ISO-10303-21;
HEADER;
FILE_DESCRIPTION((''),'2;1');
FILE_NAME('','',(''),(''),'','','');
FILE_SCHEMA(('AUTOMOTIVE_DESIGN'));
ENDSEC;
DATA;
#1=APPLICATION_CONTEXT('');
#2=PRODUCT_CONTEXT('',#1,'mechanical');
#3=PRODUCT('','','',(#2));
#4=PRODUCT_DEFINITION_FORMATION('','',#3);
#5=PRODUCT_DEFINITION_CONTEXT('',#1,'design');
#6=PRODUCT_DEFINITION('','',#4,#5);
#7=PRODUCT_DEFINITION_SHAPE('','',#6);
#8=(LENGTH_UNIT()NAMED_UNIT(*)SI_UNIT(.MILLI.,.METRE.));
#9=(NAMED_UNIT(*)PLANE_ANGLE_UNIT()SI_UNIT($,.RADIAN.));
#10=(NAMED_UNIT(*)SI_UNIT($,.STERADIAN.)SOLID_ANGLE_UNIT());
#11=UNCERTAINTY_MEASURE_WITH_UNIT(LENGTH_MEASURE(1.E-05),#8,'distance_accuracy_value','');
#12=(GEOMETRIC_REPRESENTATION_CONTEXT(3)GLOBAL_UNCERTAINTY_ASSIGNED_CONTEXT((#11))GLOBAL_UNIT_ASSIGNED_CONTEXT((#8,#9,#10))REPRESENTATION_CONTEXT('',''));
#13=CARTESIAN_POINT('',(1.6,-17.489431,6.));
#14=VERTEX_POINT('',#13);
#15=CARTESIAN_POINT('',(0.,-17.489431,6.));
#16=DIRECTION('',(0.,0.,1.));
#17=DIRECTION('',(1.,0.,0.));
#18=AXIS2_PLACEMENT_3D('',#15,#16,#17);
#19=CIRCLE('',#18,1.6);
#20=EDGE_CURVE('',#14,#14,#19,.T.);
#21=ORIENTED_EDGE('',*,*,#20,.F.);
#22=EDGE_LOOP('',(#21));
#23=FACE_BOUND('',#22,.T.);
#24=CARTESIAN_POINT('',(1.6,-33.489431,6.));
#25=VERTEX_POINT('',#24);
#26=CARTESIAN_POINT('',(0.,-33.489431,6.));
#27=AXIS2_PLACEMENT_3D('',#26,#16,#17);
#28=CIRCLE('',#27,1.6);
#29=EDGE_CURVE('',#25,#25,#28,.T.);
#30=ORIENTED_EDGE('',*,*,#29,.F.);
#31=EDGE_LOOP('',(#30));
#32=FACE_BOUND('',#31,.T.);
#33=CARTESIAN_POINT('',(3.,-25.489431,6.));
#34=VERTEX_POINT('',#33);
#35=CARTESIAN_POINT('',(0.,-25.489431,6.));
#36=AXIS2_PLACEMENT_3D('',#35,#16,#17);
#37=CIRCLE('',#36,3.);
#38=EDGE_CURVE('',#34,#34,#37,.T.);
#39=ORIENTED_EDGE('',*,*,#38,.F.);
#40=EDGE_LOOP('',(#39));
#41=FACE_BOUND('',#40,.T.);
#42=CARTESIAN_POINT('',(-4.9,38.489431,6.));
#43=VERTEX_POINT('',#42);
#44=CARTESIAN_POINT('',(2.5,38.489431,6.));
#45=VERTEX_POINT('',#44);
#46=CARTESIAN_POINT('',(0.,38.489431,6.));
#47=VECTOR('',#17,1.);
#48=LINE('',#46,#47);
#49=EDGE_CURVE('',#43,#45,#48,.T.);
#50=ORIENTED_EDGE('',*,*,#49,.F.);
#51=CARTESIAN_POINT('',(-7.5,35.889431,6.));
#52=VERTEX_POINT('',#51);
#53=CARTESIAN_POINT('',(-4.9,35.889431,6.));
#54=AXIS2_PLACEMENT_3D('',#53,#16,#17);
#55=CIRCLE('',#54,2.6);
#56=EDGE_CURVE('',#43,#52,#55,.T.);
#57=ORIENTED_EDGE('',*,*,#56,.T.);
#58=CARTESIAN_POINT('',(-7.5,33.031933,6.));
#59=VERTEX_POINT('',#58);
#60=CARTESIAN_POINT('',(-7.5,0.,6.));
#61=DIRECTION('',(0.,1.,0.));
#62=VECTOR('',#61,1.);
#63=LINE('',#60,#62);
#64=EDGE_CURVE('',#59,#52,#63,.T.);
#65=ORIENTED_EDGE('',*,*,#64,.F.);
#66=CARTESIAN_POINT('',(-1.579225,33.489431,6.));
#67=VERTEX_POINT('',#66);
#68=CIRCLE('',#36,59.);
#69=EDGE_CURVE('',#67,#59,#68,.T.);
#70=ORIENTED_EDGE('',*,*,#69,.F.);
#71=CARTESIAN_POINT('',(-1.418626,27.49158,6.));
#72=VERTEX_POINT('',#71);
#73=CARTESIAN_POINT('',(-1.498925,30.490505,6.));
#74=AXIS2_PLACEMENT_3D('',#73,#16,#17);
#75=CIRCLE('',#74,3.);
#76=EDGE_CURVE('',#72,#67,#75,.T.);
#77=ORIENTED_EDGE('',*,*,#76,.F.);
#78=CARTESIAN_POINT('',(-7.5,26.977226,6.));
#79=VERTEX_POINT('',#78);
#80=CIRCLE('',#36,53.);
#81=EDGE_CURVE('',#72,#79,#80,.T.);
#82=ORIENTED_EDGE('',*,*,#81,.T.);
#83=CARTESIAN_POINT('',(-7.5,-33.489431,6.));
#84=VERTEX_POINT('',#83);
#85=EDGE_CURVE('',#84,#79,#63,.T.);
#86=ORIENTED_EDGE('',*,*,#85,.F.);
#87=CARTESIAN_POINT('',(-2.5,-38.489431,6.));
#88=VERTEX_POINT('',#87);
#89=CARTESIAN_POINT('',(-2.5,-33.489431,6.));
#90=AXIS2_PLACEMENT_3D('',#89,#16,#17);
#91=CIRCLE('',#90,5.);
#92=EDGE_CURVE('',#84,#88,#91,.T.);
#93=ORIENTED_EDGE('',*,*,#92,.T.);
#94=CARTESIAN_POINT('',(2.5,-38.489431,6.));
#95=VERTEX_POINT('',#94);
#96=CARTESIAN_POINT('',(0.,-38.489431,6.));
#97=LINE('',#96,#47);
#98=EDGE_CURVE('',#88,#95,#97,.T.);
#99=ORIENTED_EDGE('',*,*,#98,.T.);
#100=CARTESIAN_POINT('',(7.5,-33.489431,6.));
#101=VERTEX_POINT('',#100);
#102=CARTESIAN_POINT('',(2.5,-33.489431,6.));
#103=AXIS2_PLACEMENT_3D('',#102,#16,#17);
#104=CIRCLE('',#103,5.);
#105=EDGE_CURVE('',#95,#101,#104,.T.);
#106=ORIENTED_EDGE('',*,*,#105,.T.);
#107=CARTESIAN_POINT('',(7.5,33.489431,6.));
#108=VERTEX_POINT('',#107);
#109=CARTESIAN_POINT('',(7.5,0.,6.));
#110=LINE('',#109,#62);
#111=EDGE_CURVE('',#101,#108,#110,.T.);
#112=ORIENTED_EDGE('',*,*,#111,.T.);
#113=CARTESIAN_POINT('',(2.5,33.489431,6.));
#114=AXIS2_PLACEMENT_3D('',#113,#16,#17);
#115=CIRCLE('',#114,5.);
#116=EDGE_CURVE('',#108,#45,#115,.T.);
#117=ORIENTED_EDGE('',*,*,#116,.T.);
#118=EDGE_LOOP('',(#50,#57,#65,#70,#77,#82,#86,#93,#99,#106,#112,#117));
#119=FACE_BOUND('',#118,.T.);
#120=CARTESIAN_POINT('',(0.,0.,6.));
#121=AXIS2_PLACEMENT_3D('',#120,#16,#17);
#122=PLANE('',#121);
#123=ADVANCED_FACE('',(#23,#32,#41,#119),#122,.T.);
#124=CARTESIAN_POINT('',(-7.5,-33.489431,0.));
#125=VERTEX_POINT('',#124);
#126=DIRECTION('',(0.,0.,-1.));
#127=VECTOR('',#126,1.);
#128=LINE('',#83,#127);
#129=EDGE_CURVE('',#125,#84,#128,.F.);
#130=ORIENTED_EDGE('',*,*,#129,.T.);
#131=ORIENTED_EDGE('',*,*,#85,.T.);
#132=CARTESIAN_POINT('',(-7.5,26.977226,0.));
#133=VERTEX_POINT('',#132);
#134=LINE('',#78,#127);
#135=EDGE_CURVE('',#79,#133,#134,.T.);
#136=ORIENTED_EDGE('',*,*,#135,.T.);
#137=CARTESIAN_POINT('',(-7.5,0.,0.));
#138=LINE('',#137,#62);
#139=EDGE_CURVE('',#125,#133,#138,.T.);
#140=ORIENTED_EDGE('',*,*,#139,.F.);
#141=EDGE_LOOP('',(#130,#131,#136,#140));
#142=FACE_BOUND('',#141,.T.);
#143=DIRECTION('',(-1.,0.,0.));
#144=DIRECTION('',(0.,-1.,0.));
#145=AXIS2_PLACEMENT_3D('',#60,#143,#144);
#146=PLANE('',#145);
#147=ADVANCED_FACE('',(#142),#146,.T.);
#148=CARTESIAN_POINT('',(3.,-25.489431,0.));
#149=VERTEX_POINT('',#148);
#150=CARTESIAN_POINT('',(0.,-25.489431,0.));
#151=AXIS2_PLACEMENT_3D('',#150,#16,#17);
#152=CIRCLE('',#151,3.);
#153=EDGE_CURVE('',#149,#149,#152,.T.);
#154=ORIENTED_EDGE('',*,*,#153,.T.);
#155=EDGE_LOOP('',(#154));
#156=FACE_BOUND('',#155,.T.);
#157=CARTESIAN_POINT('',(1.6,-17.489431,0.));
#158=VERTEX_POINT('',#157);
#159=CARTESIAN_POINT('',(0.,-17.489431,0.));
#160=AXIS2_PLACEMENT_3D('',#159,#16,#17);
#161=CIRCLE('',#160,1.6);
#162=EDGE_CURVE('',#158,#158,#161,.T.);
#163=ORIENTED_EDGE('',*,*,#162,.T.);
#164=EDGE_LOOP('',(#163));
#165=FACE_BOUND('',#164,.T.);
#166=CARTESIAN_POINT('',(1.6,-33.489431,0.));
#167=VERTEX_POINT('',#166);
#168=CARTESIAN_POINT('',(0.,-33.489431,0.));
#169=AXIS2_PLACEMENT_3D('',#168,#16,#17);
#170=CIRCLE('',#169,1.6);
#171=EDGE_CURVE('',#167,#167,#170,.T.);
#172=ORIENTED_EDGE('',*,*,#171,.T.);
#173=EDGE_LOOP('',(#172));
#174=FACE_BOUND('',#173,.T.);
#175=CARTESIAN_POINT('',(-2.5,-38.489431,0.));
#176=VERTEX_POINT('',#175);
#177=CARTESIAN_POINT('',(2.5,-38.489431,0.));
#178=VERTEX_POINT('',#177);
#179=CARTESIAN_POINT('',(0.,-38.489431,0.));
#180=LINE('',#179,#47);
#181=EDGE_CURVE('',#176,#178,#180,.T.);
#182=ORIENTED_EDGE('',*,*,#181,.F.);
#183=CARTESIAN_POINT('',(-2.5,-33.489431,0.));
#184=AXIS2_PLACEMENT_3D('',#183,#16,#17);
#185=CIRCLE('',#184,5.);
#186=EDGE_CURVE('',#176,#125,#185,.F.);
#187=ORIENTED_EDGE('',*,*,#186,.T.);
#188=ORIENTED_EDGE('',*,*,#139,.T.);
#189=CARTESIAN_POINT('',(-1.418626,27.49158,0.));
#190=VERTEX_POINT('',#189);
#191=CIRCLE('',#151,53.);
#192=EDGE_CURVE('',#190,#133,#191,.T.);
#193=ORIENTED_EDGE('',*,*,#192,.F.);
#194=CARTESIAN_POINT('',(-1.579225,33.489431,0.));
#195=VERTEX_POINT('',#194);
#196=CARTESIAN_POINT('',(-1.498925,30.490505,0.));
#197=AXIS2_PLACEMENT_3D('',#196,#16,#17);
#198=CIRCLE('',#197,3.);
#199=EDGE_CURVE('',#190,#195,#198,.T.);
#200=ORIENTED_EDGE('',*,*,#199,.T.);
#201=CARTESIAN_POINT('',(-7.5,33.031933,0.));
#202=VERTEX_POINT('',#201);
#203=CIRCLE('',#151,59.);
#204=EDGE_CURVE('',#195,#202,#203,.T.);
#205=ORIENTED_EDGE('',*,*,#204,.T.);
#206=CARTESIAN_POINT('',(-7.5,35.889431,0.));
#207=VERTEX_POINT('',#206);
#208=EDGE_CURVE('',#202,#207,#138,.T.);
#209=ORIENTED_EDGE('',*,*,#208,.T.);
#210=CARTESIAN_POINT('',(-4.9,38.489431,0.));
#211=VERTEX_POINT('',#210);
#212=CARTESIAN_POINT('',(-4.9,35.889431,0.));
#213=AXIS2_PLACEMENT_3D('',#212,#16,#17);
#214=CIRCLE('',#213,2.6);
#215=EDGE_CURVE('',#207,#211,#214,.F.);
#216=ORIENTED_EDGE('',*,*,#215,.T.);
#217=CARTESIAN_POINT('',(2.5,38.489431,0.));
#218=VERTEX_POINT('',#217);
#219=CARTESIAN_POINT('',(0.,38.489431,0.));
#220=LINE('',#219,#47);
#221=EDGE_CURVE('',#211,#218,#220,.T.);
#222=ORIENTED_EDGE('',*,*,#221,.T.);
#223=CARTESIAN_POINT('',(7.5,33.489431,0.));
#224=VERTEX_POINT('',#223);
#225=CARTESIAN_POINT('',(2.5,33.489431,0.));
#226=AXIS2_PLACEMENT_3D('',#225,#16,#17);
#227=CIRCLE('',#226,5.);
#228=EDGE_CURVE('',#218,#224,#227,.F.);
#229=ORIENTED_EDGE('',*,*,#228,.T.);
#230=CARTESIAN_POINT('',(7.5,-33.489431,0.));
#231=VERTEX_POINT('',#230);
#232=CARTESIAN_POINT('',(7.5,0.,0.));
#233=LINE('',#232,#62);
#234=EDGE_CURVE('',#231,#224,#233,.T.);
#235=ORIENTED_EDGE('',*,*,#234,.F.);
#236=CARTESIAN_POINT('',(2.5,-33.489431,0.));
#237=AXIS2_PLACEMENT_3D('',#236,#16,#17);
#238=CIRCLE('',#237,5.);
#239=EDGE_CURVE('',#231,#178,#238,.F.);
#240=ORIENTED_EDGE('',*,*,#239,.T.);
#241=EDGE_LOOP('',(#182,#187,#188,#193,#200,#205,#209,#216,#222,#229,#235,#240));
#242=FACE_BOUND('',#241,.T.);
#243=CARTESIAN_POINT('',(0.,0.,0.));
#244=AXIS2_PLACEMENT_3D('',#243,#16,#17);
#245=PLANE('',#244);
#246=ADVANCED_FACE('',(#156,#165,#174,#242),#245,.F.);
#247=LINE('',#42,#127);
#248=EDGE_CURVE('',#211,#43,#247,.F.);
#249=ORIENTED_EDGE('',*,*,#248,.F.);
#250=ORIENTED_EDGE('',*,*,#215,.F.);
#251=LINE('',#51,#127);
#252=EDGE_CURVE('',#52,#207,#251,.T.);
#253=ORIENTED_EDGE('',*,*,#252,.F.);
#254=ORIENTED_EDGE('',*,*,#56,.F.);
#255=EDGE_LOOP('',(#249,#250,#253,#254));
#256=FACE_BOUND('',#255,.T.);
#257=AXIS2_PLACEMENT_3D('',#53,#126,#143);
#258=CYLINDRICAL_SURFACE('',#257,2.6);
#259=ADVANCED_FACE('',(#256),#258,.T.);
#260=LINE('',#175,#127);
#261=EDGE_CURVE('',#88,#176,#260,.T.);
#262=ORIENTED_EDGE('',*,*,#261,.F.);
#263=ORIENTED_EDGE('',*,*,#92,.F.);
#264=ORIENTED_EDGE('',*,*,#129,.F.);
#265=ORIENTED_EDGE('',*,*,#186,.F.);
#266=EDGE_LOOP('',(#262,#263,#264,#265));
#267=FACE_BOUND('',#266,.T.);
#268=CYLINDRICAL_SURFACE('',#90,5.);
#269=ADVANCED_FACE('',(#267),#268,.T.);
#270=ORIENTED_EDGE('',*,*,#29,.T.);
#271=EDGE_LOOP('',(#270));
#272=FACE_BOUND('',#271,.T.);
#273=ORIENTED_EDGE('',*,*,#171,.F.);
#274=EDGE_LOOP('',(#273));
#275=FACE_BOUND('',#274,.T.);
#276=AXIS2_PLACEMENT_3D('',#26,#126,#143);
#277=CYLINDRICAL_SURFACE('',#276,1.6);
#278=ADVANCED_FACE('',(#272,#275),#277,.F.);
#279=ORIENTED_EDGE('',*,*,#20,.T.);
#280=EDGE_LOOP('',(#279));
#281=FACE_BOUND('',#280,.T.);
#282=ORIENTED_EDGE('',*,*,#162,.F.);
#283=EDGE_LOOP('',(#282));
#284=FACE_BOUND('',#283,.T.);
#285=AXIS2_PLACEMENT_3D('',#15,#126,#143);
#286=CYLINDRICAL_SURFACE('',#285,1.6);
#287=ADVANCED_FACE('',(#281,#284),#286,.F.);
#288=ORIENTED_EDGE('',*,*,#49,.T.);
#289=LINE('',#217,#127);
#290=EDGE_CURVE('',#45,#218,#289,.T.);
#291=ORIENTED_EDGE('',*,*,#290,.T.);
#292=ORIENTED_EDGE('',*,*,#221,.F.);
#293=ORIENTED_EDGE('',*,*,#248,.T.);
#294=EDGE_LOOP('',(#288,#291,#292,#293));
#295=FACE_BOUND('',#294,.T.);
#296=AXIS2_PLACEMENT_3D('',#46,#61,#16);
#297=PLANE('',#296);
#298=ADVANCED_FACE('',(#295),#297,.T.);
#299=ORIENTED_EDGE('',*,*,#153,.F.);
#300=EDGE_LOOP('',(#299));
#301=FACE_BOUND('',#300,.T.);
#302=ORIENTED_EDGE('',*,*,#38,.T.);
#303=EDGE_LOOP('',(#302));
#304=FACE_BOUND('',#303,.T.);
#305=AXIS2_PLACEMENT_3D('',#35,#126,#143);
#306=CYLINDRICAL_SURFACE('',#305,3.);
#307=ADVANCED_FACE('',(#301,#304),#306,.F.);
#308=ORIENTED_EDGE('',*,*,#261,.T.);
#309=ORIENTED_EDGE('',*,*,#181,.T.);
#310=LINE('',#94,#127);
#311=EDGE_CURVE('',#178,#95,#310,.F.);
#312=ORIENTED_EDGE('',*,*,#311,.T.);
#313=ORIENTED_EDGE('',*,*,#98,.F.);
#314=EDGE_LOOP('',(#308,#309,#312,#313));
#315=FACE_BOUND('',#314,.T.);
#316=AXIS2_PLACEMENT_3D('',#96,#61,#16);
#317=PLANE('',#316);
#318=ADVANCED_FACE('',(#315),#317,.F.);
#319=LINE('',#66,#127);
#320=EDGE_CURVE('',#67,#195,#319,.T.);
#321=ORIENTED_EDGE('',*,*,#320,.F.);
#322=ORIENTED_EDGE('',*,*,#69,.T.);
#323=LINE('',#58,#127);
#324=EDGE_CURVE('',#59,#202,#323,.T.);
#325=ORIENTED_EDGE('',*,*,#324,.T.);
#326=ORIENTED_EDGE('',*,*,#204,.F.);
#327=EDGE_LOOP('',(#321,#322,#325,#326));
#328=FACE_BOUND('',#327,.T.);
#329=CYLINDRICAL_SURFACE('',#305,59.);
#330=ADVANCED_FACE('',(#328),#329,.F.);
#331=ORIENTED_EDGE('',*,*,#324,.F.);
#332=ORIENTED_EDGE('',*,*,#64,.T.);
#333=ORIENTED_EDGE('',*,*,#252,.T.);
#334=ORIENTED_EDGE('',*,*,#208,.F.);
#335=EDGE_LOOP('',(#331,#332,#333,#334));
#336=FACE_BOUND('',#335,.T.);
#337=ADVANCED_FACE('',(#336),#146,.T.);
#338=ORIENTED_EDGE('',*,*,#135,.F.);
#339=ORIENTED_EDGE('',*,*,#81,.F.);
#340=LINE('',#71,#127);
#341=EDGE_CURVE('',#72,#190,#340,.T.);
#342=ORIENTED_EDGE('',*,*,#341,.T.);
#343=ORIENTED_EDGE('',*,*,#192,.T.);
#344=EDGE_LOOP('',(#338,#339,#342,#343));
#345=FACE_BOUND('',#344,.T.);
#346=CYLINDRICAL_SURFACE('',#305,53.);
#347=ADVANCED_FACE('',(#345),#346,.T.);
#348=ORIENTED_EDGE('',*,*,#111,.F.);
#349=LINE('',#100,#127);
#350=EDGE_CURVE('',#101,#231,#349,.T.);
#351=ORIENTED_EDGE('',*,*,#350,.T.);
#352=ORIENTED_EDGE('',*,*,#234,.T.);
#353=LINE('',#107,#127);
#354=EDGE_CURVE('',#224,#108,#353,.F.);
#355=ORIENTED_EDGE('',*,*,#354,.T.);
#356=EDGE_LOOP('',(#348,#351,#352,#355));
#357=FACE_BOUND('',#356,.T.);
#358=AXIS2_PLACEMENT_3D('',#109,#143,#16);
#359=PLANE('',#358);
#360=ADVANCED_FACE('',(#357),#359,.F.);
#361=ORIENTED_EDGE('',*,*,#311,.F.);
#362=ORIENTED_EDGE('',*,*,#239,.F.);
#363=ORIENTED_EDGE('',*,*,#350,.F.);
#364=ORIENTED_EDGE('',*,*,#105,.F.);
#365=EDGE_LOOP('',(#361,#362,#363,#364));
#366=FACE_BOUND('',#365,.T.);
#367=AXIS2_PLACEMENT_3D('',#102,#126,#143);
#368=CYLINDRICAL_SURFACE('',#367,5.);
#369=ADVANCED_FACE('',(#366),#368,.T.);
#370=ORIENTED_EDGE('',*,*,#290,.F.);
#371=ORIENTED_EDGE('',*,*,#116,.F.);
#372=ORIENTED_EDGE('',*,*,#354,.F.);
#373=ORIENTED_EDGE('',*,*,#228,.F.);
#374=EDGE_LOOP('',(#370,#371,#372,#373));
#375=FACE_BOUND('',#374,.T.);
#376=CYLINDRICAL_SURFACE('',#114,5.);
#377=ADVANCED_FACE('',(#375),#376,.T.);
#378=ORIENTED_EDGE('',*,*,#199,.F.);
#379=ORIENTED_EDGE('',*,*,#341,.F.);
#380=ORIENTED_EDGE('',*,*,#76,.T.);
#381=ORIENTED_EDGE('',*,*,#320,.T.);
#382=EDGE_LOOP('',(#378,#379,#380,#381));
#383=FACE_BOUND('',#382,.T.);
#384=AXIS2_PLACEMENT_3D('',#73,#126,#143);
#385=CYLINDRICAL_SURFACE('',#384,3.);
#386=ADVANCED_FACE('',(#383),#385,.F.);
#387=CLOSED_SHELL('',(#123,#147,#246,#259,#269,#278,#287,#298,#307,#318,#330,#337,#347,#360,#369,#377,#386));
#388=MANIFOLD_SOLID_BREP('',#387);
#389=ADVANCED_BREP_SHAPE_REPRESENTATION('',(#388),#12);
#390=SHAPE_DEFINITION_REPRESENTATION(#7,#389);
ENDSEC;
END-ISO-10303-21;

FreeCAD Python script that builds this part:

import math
import FreeCAD as App
import Part
import Sketcher

V = App.Vector
Q = App.Units.Quantity


def edges_at(feature, points):
    """Names of the edges that pass closest to the given points."""
    edges = feature.Shape.Edges
    near = lambda p: min(range(len(edges)), key=lambda i: edges[i].distToShape(Part.Vertex(*p))[0])
    return sorted({f"Edge{near(p) + 1}" for p in points})

doc = App.newDocument("Part")
params = doc.addObject("Spreadsheet::Sheet", "Params")
for row, (alias, value) in enumerate([
    ("sketch1_diameter", "6 mm"),
    ("sketch1_radius", "59 mm"),
    ("sketch1_diameter2", "3.2 mm"),
    ("sketch1_width", "15 mm"),
    ("pad1_length", "6 mm"),
    ("fillet_radius", "5 mm"),
    ("fillet2_radius", "2.6 mm"),
], start=1):
    params.set(f"A{row}", alias)
    params.set(f"B{row}", "=" + value)
    params.setAlias(f"B{row}", alias)

body = doc.addObject("PartDesign::Body", "Body")

# Sketch on XY plane
sketch1 = body.newObject("Sketcher::SketchObject", "Sketch")
sketch1.AttachmentSupport = (doc.getObject("XY_Plane"), [""])
sketch1.MapMode = "FlatFace"
sketch1.addGeometry(Part.LineSegment(V(-7.5, 26.977226, 0), V(-7.5, -38.489431, 0)), False)
sketch1.addGeometry(Part.LineSegment(V(-7.5, -38.489431, 0), V(7.5, -38.489431, 0)), False)
sketch1.addGeometry(Part.LineSegment(V(7.5, -38.489431, 0), V(7.5, 38.489431, 0)), False)
sketch1.addGeometry(Part.LineSegment(V(7.5, 38.489431, 0), V(-7.5, 38.489431, 0)), False)
sketch1.addGeometry(Part.LineSegment(V(-7.5, 38.489431, 0), V(-7.5, 33.031933, 0)), False)
sketch1.addGeometry(Part.ArcOfCircle(Part.Circle(V(0, -25.48943, 0), V(0, 0, 1), 59), math.radians(91.533792), math.radians(97.303121)), False)
sketch1.addGeometry(Part.ArcOfCircle(Part.Circle(V(-1.498925, 30.490505, 0), V(0, 0, 1), 3), math.radians(-88.466208), math.radians(91.533792)), False)
sketch1.addGeometry(Part.ArcOfCircle(Part.Circle(V(0, -25.489431, 0), V(0, 0, 1), 53), math.radians(91.533792), math.radians(98.1352)), False)
sketch1.addGeometry(Part.Circle(V(0, -33.489431, 0), V(0, 0, 1), 1.6), False)
sketch1.addGeometry(Part.Circle(V(0, -25.489431, 0), V(0, 0, 1), 3), False)
sketch1.addGeometry(Part.Circle(V(0, -17.489431, 0), V(0, 0, 1), 1.6), False)
sketch1.addConstraint(Sketcher.Constraint("Coincident", 0, 2, 1, 1))
sketch1.addConstraint(Sketcher.Constraint("Coincident", 1, 2, 2, 1))
sketch1.addConstraint(Sketcher.Constraint("Coincident", 2, 2, 3, 1))
sketch1.addConstraint(Sketcher.Constraint("Coincident", 3, 2, 4, 1))
sketch1.addConstraint(Sketcher.Constraint("Coincident", 4, 2, 5, 2))
sketch1.addConstraint(Sketcher.Constraint("Tangent", 5, 1, 6, 2))
sketch1.addConstraint(Sketcher.Constraint("Tangent", 6, 1, 7, 1))
sketch1.addConstraint(Sketcher.Constraint("Coincident", 7, 2, 0, 1))
sketch1.addConstraint(Sketcher.Constraint("Vertical", 0))
sketch1.addConstraint(Sketcher.Constraint("Horizontal", 1))
sketch1.addConstraint(Sketcher.Constraint("Vertical", 2))
sketch1.addConstraint(Sketcher.Constraint("Horizontal", 3))
sketch1.addConstraint(Sketcher.Constraint("Vertical", 4))
sketch1.addConstraint(Sketcher.Constraint("Coincident", 7, 3, 5, 3))
sketch1.addConstraint(Sketcher.Constraint("Coincident", 9, 3, 5, 3))
sketch1.addConstraint(Sketcher.Constraint("Equal", 6, 9))
sketch1.addConstraint(Sketcher.Constraint("Equal", 8, 10))
sketch1.addConstraint(Sketcher.Constraint("Symmetric", 0, 2, 2, 2, -1, 1))
sketch1.addConstraint(Sketcher.Constraint("PointOnObject", 5, 3, -2))
sketch1.addConstraint(Sketcher.Constraint("PointOnObject", 8, 3, -2))
sketch1.addConstraint(Sketcher.Constraint("PointOnObject", 10, 3, -2))
sketch1.addConstraint(Sketcher.Constraint("Vertical", 0, 2, 3, 2))
sketch1.addConstraint(Sketcher.Constraint("Diameter", 9, Q("6 mm")))
sketch1.addConstraint(Sketcher.Constraint("Radius", 5, Q("59 mm")))
sketch1.addConstraint(Sketcher.Constraint("Diameter", 8, Q("3.2 mm")))
sketch1.addConstraint(Sketcher.Constraint("DistanceX", 1, 1, 1, 2, Q("15 mm")))
sketch1.addConstraint(Sketcher.Constraint("DistanceY", 8, 3, 7, 3, Q("8 mm")))
sketch1.addConstraint(Sketcher.Constraint("DistanceY", 5, 3, 10, 3, Q("8 mm")))
sketch1.addConstraint(Sketcher.Constraint("DistanceY", 0, 2, 8, 3, Q("5 mm")))
sketch1.addConstraint(Sketcher.Constraint("DistanceY", 5, 1, 3, 2, Q("5 mm")))
sketch1.addConstraint(Sketcher.Constraint("DistanceY", 2, 1, 2, 2, Q("76.978861 mm")))
sketch1.setExpression("Constraints[22]", "Params.sketch1_diameter")
sketch1.setExpression("Constraints[23]", "Params.sketch1_radius")
sketch1.setExpression("Constraints[24]", "Params.sketch1_diameter2")
sketch1.setExpression("Constraints[25]", "Params.sketch1_width")
pad1 = body.newObject("PartDesign::Pad", "Pad")
pad1.Profile = sketch1
pad1.setExpression("Length", "Params.pad1_length")
doc.recompute()

fillet = body.newObject("PartDesign::Fillet", "Fillet")
fillet.Base = (pad1, edges_at(pad1, [(7.5, 38.489, 3), (7.5, -38.489, 3), (-7.5, -38.489, 3)]))
fillet.setExpression("Radius", "Params.fillet_radius")
doc.recompute()

fillet2 = body.newObject("PartDesign::Fillet", "Fillet001")
fillet2.Base = (fillet, edges_at(fillet, [(-7.5, 38.489, 3)]))
fillet2.setExpression("Radius", "Params.fillet2_radius")

doc.recompute()
